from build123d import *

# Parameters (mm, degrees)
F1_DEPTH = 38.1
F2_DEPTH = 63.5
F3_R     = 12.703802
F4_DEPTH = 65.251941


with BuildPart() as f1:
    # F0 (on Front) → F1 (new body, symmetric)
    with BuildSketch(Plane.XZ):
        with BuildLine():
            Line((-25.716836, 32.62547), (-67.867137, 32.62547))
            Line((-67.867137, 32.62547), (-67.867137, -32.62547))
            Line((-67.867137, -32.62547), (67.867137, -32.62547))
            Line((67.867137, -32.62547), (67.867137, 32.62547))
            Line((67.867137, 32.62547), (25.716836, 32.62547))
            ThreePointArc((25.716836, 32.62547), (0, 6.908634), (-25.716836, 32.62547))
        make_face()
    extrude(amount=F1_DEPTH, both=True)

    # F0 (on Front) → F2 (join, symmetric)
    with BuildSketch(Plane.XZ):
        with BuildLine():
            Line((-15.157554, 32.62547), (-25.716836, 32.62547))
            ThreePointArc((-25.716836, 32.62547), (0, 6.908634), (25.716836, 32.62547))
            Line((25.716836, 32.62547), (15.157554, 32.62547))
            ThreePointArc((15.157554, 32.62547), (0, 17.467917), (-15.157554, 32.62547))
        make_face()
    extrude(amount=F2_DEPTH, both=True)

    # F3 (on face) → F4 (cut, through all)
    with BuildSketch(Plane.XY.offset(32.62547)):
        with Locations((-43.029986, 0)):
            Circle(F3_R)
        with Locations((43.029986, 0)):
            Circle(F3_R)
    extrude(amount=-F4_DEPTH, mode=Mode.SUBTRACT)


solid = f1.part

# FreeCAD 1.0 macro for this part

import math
import FreeCAD as App
import Part
import Sketcher
Q = App.Units.Quantity

doc = App.newDocument("Part")
body = doc.addObject("PartDesign::Body", "Body")

sketch1 = doc.addObject("Sketcher::SketchObject", "Sketch")
body.addObject(sketch1)
sketch1.AttachmentSupport = (doc.XZ_Plane, [""])
sketch1.MapMode = "FlatFace"
sketch1.addGeometry([
    Part.LineSegment(App.Vector(-26, 33, 0), App.Vector(-68, 33, 0)),
    Part.LineSegment(App.Vector(-68, 33, 0), App.Vector(-68, -33, 0)),
    Part.LineSegment(App.Vector(-68, -33, 0), App.Vector(68, -33, 0)),
    Part.LineSegment(App.Vector(68, -33, 0), App.Vector(68, 33, 0)),
    Part.LineSegment(App.Vector(68, 33, 0), App.Vector(26, 33, 0)),
    Part.ArcOfCircle(Part.Circle(App.Vector(0, 33, 0), App.Vector(0, 0, 1), 26), math.radians(180), math.radians(360)),
], False)
sketch1.addConstraint([
    Sketcher.Constraint("Coincident", 0, 2, 1, 1),
    Sketcher.Constraint("Coincident", 1, 2, 2, 1),
    Sketcher.Constraint("Coincident", 2, 2, 3, 1),
    Sketcher.Constraint("Coincident", 3, 2, 4, 1),
    Sketcher.Constraint("Coincident", 4, 2, 5, 2),
    Sketcher.Constraint("Coincident", 5, 1, 0, 1),
    Sketcher.Constraint("Horizontal", 0),
    Sketcher.Constraint("Vertical", 1),
    Sketcher.Constraint("Horizontal", 2),
    Sketcher.Constraint("Vertical", 3),
    Sketcher.Constraint("Horizontal", 4),
    Sketcher.Constraint("Symmetric", 0, 2, 2, 2, -1, 1),
    Sketcher.Constraint("Symmetric", 4, 2, 5, 1, -2),
    Sketcher.Constraint("Horizontal", 5, 3, 0, 2),
    Sketcher.Constraint("DistanceX", 0, 2, 0, 1, 42.150301),
    Sketcher.Constraint("Radius", 5, 25.716836),
    Sketcher.Constraint("DistanceY", 1, 2, 1, 1, 65.25094),
])
pad1 = doc.addObject("PartDesign::Pad", "Pad")
body.addObject(pad1)
pad1.Profile = sketch1
pad1.Length = Q("3 in")
pad1.Midplane = True

sketch2 = doc.addObject("Sketcher::SketchObject", "Sketch001")
body.addObject(sketch2)
sketch2.AttachmentSupport = (doc.XZ_Plane, [""])
sketch2.MapMode = "FlatFace"
sketch2.addGeometry([
    Part.LineSegment(App.Vector(-15, 33, 0), App.Vector(-26, 33, 0)),
    Part.ArcOfCircle(Part.Circle(App.Vector(0, 33, 0), App.Vector(0, 0, 1), 26), math.radians(180), math.radians(360)),
    Part.LineSegment(App.Vector(26, 33, 0), App.Vector(15, 33, 0)),
    Part.ArcOfCircle(Part.Circle(App.Vector(0, 33, 0), App.Vector(0, 0, 1), 15), math.radians(-180), math.radians(0)),
], False)
sketch2.addConstraint([
    Sketcher.Constraint("Coincident", 0, 2, 1, 1),
    Sketcher.Constraint("Coincident", 1, 2, 2, 1),
    Sketcher.Constraint("Coincident", 2, 2, 3, 2),
    Sketcher.Constraint("Coincident", 3, 1, 0, 1),
    Sketcher.Constraint("Horizontal", 0),
    Sketcher.Constraint("Horizontal", 2),
    Sketcher.Constraint("Coincident", 3, 3, 1, 3),
    Sketcher.Constraint("Symmetric", 0, 2, 1, 2, -2),
    Sketcher.Constraint("Horizontal", 3, 3, 0, 2),
    Sketcher.Constraint("Radius", 1, 25.716836),
    Sketcher.Constraint("Radius", 3, 15.157554),
    Sketcher.Constraint("DistanceY", -1, 1, 1, 3, 32.62547),
])
pad2 = doc.addObject("PartDesign::Pad", "Pad001")
body.addObject(pad2)
pad2.Profile = sketch2
pad2.Length = Q("5 in")
pad2.Midplane = True

sketch3 = doc.addObject("Sketcher::SketchObject", "Sketch002")
body.addObject(sketch3)
sketch3.AttachmentSupport = (doc.XY_Plane, [""])
sketch3.MapMode = "FlatFace"
sketch3.AttachmentOffset = App.Placement(App.Vector(0, 0, 32.62547), App.Rotation())
sketch3.addGeometry([
    Part.Circle(App.Vector(-43, 0, 0), App.Vector(0, 0, 1), 13),
    Part.Circle(App.Vector(43, 0, 0), App.Vector(0, 0, 1), 13),
], False)
sketch3.addConstraint([
    Sketcher.Constraint("Equal", 0, 1),
    Sketcher.Constraint("Symmetric", 0, 3, 1, 3, -1, 1),
    Sketcher.Constraint("PointOnObject", 0, 3, -1),
    Sketcher.Constraint("Diameter", 0, 25.407604),
    Sketcher.Constraint("DistanceX", 0, 3, 1, 3, 86.059972),
])
pocket1 = doc.addObject("PartDesign::Pocket", "Pocket")
body.addObject(pocket1)
pocket1.Profile = sketch3
pocket1.Type = "ThroughAll"

doc.recompute()
